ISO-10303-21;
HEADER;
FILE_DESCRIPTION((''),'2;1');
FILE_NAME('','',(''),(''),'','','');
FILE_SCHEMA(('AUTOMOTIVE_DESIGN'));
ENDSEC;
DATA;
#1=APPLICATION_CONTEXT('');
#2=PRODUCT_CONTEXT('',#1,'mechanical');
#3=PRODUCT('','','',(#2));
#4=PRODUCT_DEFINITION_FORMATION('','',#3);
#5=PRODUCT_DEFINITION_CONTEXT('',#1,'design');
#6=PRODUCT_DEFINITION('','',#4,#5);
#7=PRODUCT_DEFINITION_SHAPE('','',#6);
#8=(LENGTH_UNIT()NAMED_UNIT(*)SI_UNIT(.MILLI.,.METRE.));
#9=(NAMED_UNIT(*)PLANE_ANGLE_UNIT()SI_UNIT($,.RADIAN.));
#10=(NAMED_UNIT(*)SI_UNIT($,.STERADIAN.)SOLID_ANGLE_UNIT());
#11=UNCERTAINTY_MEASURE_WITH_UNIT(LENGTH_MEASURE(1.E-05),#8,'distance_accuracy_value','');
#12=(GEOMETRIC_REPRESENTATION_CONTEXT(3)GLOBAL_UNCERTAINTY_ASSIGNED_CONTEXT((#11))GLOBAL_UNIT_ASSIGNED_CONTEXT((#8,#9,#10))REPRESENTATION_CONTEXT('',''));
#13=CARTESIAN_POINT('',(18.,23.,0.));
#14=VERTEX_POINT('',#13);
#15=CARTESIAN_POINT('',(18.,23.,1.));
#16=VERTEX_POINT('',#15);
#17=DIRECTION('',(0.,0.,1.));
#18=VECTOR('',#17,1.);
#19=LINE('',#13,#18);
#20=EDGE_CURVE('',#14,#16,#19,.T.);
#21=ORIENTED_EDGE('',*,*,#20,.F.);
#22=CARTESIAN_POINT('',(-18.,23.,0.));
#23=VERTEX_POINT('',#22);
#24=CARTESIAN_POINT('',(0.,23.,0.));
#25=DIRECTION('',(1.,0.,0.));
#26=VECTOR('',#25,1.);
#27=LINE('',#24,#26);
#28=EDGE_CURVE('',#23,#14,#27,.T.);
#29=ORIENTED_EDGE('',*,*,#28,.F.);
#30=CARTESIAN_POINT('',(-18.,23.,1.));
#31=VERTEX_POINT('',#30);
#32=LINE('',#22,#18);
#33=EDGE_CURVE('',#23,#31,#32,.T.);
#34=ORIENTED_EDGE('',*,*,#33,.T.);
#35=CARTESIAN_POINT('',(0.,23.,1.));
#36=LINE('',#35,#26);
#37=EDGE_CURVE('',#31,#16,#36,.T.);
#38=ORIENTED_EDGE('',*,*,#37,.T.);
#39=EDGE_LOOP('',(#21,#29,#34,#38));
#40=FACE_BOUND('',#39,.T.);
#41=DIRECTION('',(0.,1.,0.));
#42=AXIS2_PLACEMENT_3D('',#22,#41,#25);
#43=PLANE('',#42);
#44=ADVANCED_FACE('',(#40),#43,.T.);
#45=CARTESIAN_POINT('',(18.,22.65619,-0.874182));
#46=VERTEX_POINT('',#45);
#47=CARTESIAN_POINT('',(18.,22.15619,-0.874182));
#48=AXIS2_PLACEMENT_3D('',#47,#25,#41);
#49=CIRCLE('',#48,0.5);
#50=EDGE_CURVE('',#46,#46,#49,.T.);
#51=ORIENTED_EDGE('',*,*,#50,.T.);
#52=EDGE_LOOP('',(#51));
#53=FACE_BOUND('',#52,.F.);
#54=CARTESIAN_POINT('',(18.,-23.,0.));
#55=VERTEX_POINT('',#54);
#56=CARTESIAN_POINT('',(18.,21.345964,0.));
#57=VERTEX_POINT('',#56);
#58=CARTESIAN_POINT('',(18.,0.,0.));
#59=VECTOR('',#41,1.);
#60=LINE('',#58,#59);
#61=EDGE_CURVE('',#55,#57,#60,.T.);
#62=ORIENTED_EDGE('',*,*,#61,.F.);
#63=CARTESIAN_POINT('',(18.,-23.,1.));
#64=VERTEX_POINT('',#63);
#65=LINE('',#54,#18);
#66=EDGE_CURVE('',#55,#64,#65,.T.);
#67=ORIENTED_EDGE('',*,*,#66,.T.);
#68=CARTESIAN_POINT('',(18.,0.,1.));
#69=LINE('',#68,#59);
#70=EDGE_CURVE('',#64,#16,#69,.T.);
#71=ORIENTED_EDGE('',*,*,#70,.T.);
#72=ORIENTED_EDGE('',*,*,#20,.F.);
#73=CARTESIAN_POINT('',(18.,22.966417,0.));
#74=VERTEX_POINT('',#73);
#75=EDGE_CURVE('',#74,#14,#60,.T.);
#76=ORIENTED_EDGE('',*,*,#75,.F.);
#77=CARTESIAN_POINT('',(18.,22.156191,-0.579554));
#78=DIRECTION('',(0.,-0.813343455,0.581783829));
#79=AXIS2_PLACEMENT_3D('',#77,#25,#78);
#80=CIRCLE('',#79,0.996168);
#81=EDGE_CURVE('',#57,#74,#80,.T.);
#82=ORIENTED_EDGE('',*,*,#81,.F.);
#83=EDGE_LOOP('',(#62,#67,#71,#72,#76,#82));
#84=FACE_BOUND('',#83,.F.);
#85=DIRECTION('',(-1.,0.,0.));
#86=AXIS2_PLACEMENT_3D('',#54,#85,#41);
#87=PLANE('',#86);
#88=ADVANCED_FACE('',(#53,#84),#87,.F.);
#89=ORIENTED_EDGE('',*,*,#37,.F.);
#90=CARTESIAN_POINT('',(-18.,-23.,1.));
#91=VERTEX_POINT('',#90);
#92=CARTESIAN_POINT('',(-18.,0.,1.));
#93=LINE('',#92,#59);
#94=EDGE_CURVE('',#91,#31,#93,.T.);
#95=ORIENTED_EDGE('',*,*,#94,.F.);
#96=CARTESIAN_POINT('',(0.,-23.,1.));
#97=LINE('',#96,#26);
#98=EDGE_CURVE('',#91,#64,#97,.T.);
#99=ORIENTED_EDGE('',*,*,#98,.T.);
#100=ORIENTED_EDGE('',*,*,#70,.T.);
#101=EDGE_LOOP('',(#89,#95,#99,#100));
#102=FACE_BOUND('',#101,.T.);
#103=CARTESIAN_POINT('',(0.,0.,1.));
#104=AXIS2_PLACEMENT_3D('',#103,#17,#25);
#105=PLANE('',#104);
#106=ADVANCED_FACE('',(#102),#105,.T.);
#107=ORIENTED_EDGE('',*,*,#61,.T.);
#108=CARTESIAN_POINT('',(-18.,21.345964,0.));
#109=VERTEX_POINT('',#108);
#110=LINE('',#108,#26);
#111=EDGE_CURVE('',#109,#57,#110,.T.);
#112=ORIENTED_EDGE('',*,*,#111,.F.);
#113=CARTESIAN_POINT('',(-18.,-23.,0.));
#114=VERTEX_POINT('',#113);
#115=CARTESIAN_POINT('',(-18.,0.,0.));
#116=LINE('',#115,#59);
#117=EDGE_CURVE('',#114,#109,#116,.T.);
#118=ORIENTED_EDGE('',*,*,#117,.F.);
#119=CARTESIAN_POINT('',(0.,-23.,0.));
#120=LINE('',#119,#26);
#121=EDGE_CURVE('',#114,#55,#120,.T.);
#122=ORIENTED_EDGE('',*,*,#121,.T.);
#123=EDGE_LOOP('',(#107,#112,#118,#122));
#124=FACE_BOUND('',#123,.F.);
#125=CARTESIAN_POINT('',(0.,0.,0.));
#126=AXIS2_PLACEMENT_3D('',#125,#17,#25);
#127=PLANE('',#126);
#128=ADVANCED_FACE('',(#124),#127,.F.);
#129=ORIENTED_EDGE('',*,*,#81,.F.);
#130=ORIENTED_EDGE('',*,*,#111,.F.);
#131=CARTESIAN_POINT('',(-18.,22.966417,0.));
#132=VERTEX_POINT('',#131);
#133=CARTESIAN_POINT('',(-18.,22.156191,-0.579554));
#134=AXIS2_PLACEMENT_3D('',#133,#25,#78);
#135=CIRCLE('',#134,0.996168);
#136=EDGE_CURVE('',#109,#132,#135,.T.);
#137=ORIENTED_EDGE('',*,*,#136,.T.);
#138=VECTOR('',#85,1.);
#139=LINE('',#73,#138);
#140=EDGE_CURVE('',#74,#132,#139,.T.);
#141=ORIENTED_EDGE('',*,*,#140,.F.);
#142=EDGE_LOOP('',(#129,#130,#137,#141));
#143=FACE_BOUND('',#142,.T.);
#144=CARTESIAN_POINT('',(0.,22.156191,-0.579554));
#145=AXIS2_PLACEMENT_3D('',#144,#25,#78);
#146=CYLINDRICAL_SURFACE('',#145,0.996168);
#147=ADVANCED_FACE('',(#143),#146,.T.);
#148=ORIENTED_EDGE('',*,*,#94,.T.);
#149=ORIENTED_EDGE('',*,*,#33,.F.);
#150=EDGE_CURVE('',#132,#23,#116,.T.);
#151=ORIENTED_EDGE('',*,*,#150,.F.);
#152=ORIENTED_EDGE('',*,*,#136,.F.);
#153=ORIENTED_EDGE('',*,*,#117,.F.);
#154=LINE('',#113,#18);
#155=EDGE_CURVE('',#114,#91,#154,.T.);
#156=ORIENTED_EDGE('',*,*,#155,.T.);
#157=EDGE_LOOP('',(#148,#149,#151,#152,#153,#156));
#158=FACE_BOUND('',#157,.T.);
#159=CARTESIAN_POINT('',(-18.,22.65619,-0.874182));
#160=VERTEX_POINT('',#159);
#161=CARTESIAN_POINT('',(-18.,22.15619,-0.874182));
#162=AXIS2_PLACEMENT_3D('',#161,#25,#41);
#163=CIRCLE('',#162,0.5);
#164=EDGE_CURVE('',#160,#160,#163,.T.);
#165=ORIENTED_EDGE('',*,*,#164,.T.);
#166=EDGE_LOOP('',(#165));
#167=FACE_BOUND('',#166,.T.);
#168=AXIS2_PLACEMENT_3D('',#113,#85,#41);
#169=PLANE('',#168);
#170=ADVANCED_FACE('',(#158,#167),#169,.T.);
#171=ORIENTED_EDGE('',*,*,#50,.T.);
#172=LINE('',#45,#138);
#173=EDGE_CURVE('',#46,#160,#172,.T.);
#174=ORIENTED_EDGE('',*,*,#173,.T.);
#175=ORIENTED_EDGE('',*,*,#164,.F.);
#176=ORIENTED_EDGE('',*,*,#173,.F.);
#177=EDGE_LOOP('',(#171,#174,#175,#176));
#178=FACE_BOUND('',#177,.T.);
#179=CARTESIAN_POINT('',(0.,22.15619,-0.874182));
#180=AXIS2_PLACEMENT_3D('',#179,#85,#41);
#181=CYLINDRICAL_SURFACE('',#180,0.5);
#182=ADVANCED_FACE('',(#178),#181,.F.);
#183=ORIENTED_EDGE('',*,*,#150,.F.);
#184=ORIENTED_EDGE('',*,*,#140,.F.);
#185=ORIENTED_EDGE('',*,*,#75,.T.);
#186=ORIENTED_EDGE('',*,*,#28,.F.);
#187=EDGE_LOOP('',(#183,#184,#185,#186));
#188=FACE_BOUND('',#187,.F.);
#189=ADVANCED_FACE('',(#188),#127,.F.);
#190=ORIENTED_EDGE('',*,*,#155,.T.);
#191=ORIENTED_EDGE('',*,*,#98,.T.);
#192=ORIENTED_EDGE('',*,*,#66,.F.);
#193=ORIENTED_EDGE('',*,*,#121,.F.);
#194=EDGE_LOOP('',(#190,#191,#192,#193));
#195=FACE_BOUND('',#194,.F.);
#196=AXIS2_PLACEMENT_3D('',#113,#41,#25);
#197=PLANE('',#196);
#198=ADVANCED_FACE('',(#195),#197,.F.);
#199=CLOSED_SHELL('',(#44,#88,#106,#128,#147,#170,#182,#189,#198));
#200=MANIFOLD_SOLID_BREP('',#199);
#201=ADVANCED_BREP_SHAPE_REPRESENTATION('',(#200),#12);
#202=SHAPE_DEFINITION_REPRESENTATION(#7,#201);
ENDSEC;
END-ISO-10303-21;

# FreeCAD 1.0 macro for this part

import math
import FreeCAD as App
import Part
import Sketcher
from FreeCAD import Vector
Q = App.Units.Quantity


def add_polygon(sketch, points):
    """Adds a closed chain of lines whose ends are joined by coincident constraints."""
    first, n = sketch.GeometryCount, len(points)
    for a, b in zip(points, points[1:] + points[:1]):
        sketch.addGeometry(Part.LineSegment(App.Vector(*a, 0), App.Vector(*b, 0)), False)
    for i in range(n):
        sketch.addConstraint(Sketcher.Constraint("Coincident", first + i, 2, first + (i + 1) % n, 1))

doc = App.newDocument("Part")
body = doc.addObject("PartDesign::Body", "Body")

# Sketch on XY plane
sketch1 = body.newObject("Sketcher::SketchObject", "Sketch")
sketch1.AttachmentSupport = (doc.getObject("XY_Plane"), [""])
sketch1.MapMode = "FlatFace"
add_polygon(sketch1, [(-18, 23), (-18, -23), (18, -23), (18, 23)])  # lines 0-3
sketch1.addConstraint(Sketcher.Constraint("Vertical", 0))
sketch1.addConstraint(Sketcher.Constraint("Horizontal", 1))
sketch1.addConstraint(Sketcher.Constraint("Vertical", 2))
sketch1.addConstraint(Sketcher.Constraint("Horizontal", 3))
sketch1.addConstraint(Sketcher.Constraint("Symmetric", 0, 2, 2, 2, -1, 1))
sketch1.addConstraint(Sketcher.Constraint("DistanceX", 1, 1, 1, 2, Q("36 mm")))
sketch1.addConstraint(Sketcher.Constraint("DistanceY", 0, 2, 0, 1, Q("46 mm")))
pad1 = body.newObject("PartDesign::Pad", "Pad")
pad1.Profile = sketch1
pad1.Length = 1

# Sketch on YZ plane
sketch2 = body.newObject("Sketcher::SketchObject", "Sketch001")
sketch2.AttachmentSupport = (doc.getObject("YZ_Plane"), [""])
sketch2.MapMode = "FlatFace"
sketch2.addGeometry(Part.LineSegment(Vector(22.966417, 0, 0), Vector(21.345964, 0, 0)), False)
sketch2.addGeometry(Part.ArcOfCircle(Part.Circle(Vector(22.156191, -0.579554, 0), Vector(0, 0, 1), 0.996168), math.radians(144.423894), math.radians(395.576106)), False)
sketch2.addGeometry(Part.Circle(Vector(22.15619, -0.874182, 0), Vector(0, 0, 1), 0.5), False)
sketch2.addConstraint(Sketcher.Constraint("Coincident", 0, 1, 1, 2))
sketch2.addConstraint(Sketcher.Constraint("Coincident", 1, 1, 0, 2))
sketch2.addConstraint(Sketcher.Constraint("Horizontal", 0))
sketch2.addConstraint(Sketcher.Constraint("PointOnObject", 0, 1, -1))
sketch2.addConstraint(Sketcher.Constraint("Vertical", 1, 3, 2, 3))
sketch2.addConstraint(Sketcher.Constraint("Diameter", 2, Q("1 mm")))
sketch2.addConstraint(Sketcher.Constraint("Radius", 1, Q("0.996168 mm")))
sketch2.addConstraint(Sketcher.Constraint("DistanceX", 0, 2, 0, 1, Q("1.620453 mm")))
sketch2.addConstraint(Sketcher.Constraint("DistanceX", -1, 1, 1, 3, Q("22.156191 mm")))
sketch2.addConstraint(Sketcher.Constraint("DistanceY", 2, 3, -1, 1, Q("0.874182 mm")))
pad2 = body.newObject("PartDesign::Pad", "Pad001")
pad2.Profile = sketch2
pad2.Length = 36
pad2.Midplane = True

doc.recompute()
